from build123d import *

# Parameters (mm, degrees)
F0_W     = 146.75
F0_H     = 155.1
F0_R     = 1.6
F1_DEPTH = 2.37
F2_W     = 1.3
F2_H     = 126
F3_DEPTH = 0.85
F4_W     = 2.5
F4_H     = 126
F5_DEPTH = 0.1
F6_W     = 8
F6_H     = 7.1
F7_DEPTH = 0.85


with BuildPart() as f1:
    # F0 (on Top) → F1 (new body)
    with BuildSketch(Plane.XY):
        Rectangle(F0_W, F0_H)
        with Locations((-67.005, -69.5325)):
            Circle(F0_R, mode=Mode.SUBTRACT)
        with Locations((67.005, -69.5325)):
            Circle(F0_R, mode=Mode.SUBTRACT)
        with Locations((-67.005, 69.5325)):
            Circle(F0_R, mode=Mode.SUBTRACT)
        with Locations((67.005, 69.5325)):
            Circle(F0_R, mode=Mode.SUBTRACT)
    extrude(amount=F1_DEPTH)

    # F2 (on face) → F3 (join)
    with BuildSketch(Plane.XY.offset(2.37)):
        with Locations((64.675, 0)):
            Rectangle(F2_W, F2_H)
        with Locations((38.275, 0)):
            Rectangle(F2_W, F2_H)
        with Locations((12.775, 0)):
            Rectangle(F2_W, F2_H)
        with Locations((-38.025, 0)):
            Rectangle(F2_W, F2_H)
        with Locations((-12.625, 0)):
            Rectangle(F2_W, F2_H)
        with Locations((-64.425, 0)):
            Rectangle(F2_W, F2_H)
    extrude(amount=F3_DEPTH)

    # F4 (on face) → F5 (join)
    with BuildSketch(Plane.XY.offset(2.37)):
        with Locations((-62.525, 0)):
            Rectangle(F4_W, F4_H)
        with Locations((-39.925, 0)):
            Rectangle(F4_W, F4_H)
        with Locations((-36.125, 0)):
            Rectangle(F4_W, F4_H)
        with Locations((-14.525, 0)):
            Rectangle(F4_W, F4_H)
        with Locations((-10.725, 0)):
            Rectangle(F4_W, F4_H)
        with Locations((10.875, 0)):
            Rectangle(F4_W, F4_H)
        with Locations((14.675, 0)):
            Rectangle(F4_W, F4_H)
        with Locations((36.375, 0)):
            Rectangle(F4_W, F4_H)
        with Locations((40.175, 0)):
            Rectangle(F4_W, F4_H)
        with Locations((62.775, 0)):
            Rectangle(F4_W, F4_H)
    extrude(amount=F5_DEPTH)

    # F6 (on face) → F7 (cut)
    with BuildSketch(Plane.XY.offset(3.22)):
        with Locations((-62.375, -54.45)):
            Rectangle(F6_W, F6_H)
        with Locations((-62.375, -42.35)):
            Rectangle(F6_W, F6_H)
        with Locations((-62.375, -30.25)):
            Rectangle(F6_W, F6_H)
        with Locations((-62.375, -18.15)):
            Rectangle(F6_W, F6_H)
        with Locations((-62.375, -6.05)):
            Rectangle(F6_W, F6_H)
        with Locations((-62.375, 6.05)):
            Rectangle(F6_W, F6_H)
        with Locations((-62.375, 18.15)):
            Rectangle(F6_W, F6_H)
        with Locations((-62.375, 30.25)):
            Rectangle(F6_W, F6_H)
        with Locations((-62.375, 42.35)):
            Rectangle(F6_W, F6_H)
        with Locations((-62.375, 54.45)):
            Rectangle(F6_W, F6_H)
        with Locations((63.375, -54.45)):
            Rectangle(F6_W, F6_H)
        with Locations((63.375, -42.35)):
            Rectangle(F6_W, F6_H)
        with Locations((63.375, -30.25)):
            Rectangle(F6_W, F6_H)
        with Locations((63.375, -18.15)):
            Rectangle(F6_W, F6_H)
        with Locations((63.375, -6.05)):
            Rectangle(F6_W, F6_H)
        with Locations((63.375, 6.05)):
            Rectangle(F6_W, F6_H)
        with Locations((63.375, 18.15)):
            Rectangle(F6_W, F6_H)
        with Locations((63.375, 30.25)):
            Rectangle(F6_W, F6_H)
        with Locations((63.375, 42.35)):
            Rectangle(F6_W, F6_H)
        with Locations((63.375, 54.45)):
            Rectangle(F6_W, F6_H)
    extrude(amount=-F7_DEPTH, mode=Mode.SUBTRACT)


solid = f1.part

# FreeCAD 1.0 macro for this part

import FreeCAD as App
import Part
import Sketcher
from FreeCAD import Vector

doc = App.newDocument("Part")
body = doc.addObject("PartDesign::Body", "Body")

sketch1 = doc.addObject("Sketcher::SketchObject", "Sketch")
body.addObject(sketch1)
sketch1.AttachmentSupport = (doc.XY_Plane, [""])
sketch1.MapMode = "FlatFace"
sketch1.addGeometry([
    Part.LineSegment(Vector(-73.4, 77.5, 0), Vector(-73.4, -77.5, 0)),
    Part.LineSegment(Vector(-73.4, -77.5, 0), Vector(73.4, -77.5, 0)),
    Part.LineSegment(Vector(73.4, -77.5, 0), Vector(73.4, 77.5, 0)),
    Part.LineSegment(Vector(73.4, 77.5, 0), Vector(-73.4, 77.5, 0)),
    Part.Circle(Vector(-67, -69.5, 0), Vector(0, 0, 1), 1.6),
    Part.Circle(Vector(67, -69.5, 0), Vector(0, 0, 1), 1.6),
    Part.Circle(Vector(-67, 69.5, 0), Vector(0, 0, 1), 1.6),
    Part.Circle(Vector(67, 69.5, 0), Vector(0, 0, 1), 1.6),
], False)
sketch1.addConstraint([
    Sketcher.Constraint("Coincident", 0, 2, 1, 1),
    Sketcher.Constraint("Coincident", 1, 2, 2, 1),
    Sketcher.Constraint("Coincident", 2, 2, 3, 1),
    Sketcher.Constraint("Coincident", 3, 2, 0, 1),
    Sketcher.Constraint("Vertical", 0),
    Sketcher.Constraint("Horizontal", 1),
    Sketcher.Constraint("Vertical", 2),
    Sketcher.Constraint("Horizontal", 3),
    Sketcher.Constraint("Equal", 4, 5),
    Sketcher.Constraint("Equal", 5, 6),
    Sketcher.Constraint("Equal", 6, 7),
    Sketcher.Constraint("Symmetric", 5, 3, 6, 3, -1, 1),
    Sketcher.Constraint("Symmetric", 4, 3, 7, 3, -1, 1),
    Sketcher.Constraint("Symmetric", 0, 2, 2, 2, -1, 1),
    Sketcher.Constraint("Symmetric", 4, 3, 5, 3, -2),
    Sketcher.Constraint("Diameter", 4, 3.2),
    Sketcher.Constraint("DistanceY", 0, 2, 0, 1, 155.1),
    Sketcher.Constraint("DistanceX", 1, 1, 1, 2, 146.75),
    Sketcher.Constraint("DistanceX", 4, 3, 5, 3, 134.01),
    Sketcher.Constraint("DistanceY", 4, 3, 6, 3, 139.065),
])
pad1 = doc.addObject("PartDesign::Pad", "Pad")
body.addObject(pad1)
pad1.Profile = sketch1
pad1.Length = 2.37

sketch2 = doc.addObject("Sketcher::SketchObject", "Sketch001")
body.addObject(sketch2)
sketch2.AttachmentSupport = (doc.XY_Plane, [""])
sketch2.MapMode = "FlatFace"
sketch2.AttachmentOffset = App.Placement(Vector(0, 0, 2.37), App.Rotation())
sketch2.addGeometry([
    Part.LineSegment(Vector(64, 63, 0), Vector(64, -63, 0)),
    Part.LineSegment(Vector(64, -63, 0), Vector(65.3, -63, 0)),
    Part.LineSegment(Vector(65.3, -63, 0), Vector(65.3, 63, 0)),
    Part.LineSegment(Vector(65.3, 63, 0), Vector(64, 63, 0)),
    Part.LineSegment(Vector(37.6, 63, 0), Vector(37.6, -63, 0)),
    Part.LineSegment(Vector(37.6, -63, 0), Vector(38.9, -63, 0)),
    Part.LineSegment(Vector(38.9, -63, 0), Vector(38.9, 63, 0)),
    Part.LineSegment(Vector(38.9, 63, 0), Vector(37.6, 63, 0)),
    Part.LineSegment(Vector(12.1, 63, 0), Vector(12.1, -63, 0)),
    Part.LineSegment(Vector(12.1, -63, 0), Vector(13.4, -63, 0)),
    Part.LineSegment(Vector(13.4, -63, 0), Vector(13.4, 63, 0)),
    Part.LineSegment(Vector(13.4, 63, 0), Vector(12.1, 63, 0)),
    Part.LineSegment(Vector(-38.7, 63, 0), Vector(-38.7, -63, 0)),
    Part.LineSegment(Vector(-38.7, -63, 0), Vector(-37.4, -63, 0)),
    Part.LineSegment(Vector(-37.4, -63, 0), Vector(-37.4, 63, 0)),
    Part.LineSegment(Vector(-37.4, 63, 0), Vector(-38.7, 63, 0)),
    Part.LineSegment(Vector(-13.3, 63, 0), Vector(-13.3, -63, 0)),
    Part.LineSegment(Vector(-13.3, -63, 0), Vector(-12, -63, 0)),
    Part.LineSegment(Vector(-12, -63, 0), Vector(-12, 63, 0)),
    Part.LineSegment(Vector(-12, 63, 0), Vector(-13.3, 63, 0)),
    Part.LineSegment(Vector(-65.1, 63, 0), Vector(-65.1, -63, 0)),
    Part.LineSegment(Vector(-65.1, -63, 0), Vector(-63.8, -63, 0)),
    Part.LineSegment(Vector(-63.8, -63, 0), Vector(-63.8, 63, 0)),
    Part.LineSegment(Vector(-63.8, 63, 0), Vector(-65.1, 63, 0)),
], False)
sketch2.addConstraint([
    Sketcher.Constraint("Coincident", 0, 2, 1, 1),
    Sketcher.Constraint("Coincident", 1, 2, 2, 1),
    Sketcher.Constraint("Coincident", 2, 2, 3, 1),
    Sketcher.Constraint("Coincident", 3, 2, 0, 1),
    Sketcher.Constraint("Coincident", 4, 2, 5, 1),
    Sketcher.Constraint("Coincident", 5, 2, 6, 1),
    Sketcher.Constraint("Coincident", 6, 2, 7, 1),
    Sketcher.Constraint("Coincident", 7, 2, 4, 1),
    Sketcher.Constraint("Coincident", 8, 2, 9, 1),
    Sketcher.Constraint("Coincident", 9, 2, 10, 1),
    Sketcher.Constraint("Coincident", 10, 2, 11, 1),
    Sketcher.Constraint("Coincident", 11, 2, 8, 1),
    Sketcher.Constraint("Coincident", 12, 2, 13, 1),
    Sketcher.Constraint("Coincident", 13, 2, 14, 1),
    Sketcher.Constraint("Coincident", 14, 2, 15, 1),
    Sketcher.Constraint("Coincident", 15, 2, 12, 1),
    Sketcher.Constraint("Coincident", 16, 2, 17, 1),
    Sketcher.Constraint("Coincident", 17, 2, 18, 1),
    Sketcher.Constraint("Coincident", 18, 2, 19, 1),
    Sketcher.Constraint("Coincident", 19, 2, 16, 1),
    Sketcher.Constraint("Coincident", 20, 2, 21, 1),
    Sketcher.Constraint("Coincident", 21, 2, 22, 1),
    Sketcher.Constraint("Coincident", 22, 2, 23, 1),
    Sketcher.Constraint("Coincident", 23, 2, 20, 1),
    Sketcher.Constraint("Vertical", 0),
    Sketcher.Constraint("Horizontal", 1),
    Sketcher.Constraint("Vertical", 2),
    Sketcher.Constraint("Horizontal", 3),
    Sketcher.Constraint("Vertical", 4),
    Sketcher.Constraint("Horizontal", 5),
    Sketcher.Constraint("Vertical", 6),
    Sketcher.Constraint("Horizontal", 7),
    Sketcher.Constraint("Vertical", 8),
    Sketcher.Constraint("Horizontal", 9),
    Sketcher.Constraint("Vertical", 10),
    Sketcher.Constraint("Horizontal", 11),
    Sketcher.Constraint("Vertical", 12),
    Sketcher.Constraint("Horizontal", 13),
    Sketcher.Constraint("Vertical", 14),
    Sketcher.Constraint("Horizontal", 15),
    Sketcher.Constraint("Vertical", 16),
    Sketcher.Constraint("Horizontal", 17),
    Sketcher.Constraint("Vertical", 18),
    Sketcher.Constraint("Horizontal", 19),
    Sketcher.Constraint("Vertical", 20),
    Sketcher.Constraint("Horizontal", 21),
    Sketcher.Constraint("Vertical", 22),
    Sketcher.Constraint("Horizontal", 23),
    Sketcher.Constraint("Horizontal", 1, 2, 4, 2),
    Sketcher.Constraint("Horizontal", 3, 2, 6, 2),
    Sketcher.Constraint("Horizontal", 5, 2, 8, 2),
    Sketcher.Constraint("Horizontal", 7, 2, 10, 2),
    Sketcher.Constraint("Horizontal", 9, 2, 12, 2),
    Sketcher.Constraint("Horizontal", 11, 2, 14, 2),
    Sketcher.Constraint("Horizontal", 13, 2, 16, 2),
    Sketcher.Constraint("Horizontal", 15, 2, 18, 2),
    Sketcher.Constraint("Horizontal", 17, 2, 20, 2),
    Sketcher.Constraint("Horizontal", 19, 2, 22, 2),
    Sketcher.Constraint("Equal", 3, 5),
    Sketcher.Constraint("Equal", 7, 9),
    Sketcher.Constraint("Equal", 11, 13),
    Sketcher.Constraint("Equal", 15, 17),
    Sketcher.Constraint("Equal", 19, 21),
    Sketcher.Constraint("DistanceY", 0, 2, 0, 1, 126.0),
    Sketcher.Constraint("DistanceX", 1, 1, 1, 2, 1.3),
    Sketcher.Constraint("DistanceY", 0, 2, -1, 1, 63.0),
    Sketcher.Constraint("DistanceX", 13, 2, 4, 2, 75.0),
    Sketcher.Constraint("DistanceX", 4, 2, 0, 2, 26.4),
    Sketcher.Constraint("DistanceX", 8, 2, 4, 2, 25.5),
    Sketcher.Constraint("DistanceX", 13, 2, 16, 2, 24.1),
    Sketcher.Constraint("DistanceX", 20, 2, 12, 2, 26.4),
    Sketcher.Constraint("DistanceX", -1, 1, 0, 2, 64.025),
])
pad2 = doc.addObject("PartDesign::Pad", "Pad001")
body.addObject(pad2)
pad2.Profile = sketch2
pad2.Length = 0.85

sketch3 = doc.addObject("Sketcher::SketchObject", "Sketch002")
body.addObject(sketch3)
sketch3.AttachmentSupport = (doc.XY_Plane, [""])
sketch3.MapMode = "FlatFace"
sketch3.AttachmentOffset = App.Placement(Vector(0, 0, 2.37), App.Rotation())
sketch3.addGeometry([
    Part.LineSegment(Vector(-63.8, 63, 0), Vector(-63.8, -63, 0)),
    Part.LineSegment(Vector(-63.8, -63, 0), Vector(-61.3, -63, 0)),
    Part.LineSegment(Vector(-61.3, -63, 0), Vector(-61.3, 63, 0)),
    Part.LineSegment(Vector(-61.3, 63, 0), Vector(-63.8, 63, 0)),
    Part.LineSegment(Vector(-41.2, 63, 0), Vector(-41.2, -63, 0)),
    Part.LineSegment(Vector(-41.2, -63, 0), Vector(-38.7, -63, 0)),
    Part.LineSegment(Vector(-38.7, -63, 0), Vector(-38.7, 63, 0)),
    Part.LineSegment(Vector(-38.7, 63, 0), Vector(-41.2, 63, 0)),
    Part.LineSegment(Vector(-37.4, 63, 0), Vector(-37.4, -63, 0)),
    Part.LineSegment(Vector(-37.4, -63, 0), Vector(-34.9, -63, 0)),
    Part.LineSegment(Vector(-34.9, -63, 0), Vector(-34.9, 63, 0)),
    Part.LineSegment(Vector(-34.9, 63, 0), Vector(-37.4, 63, 0)),
    Part.LineSegment(Vector(-15.8, 63, 0), Vector(-15.8, -63, 0)),
    Part.LineSegment(Vector(-15.8, -63, 0), Vector(-13.3, -63, 0)),
    Part.LineSegment(Vector(-13.3, -63, 0), Vector(-13.3, 63, 0)),
    Part.LineSegment(Vector(-13.3, 63, 0), Vector(-15.8, 63, 0)),
    Part.LineSegment(Vector(-12, 63, 0), Vector(-12, -63, 0)),
    Part.LineSegment(Vector(-12, -63, 0), Vector(-9.5, -63, 0)),
    Part.LineSegment(Vector(-9.5, -63, 0), Vector(-9.5, 63, 0)),
    Part.LineSegment(Vector(-9.5, 63, 0), Vector(-12, 63, 0)),
    Part.LineSegment(Vector(9.6, 63, 0), Vector(9.6, -63, 0)),
    Part.LineSegment(Vector(9.6, -63, 0), Vector(12.1, -63, 0)),
    Part.LineSegment(Vector(12.1, -63, 0), Vector(12.1, 63, 0)),
    Part.LineSegment(Vector(12.1, 63, 0), Vector(9.6, 63, 0)),
    Part.LineSegment(Vector(13.4, 63, 0), Vector(13.4, -63, 0)),
    Part.LineSegment(Vector(13.4, -63, 0), Vector(15.9, -63, 0)),
    Part.LineSegment(Vector(15.9, -63, 0), Vector(15.9, 63, 0)),
    Part.LineSegment(Vector(15.9, 63, 0), Vector(13.4, 63, 0)),
    Part.LineSegment(Vector(35.1, 63, 0), Vector(35.1, -63, 0)),
    Part.LineSegment(Vector(35.1, -63, 0), Vector(37.6, -63, 0)),
    Part.LineSegment(Vector(37.6, -63, 0), Vector(37.6, 63, 0)),
    Part.LineSegment(Vector(37.6, 63, 0), Vector(35.1, 63, 0)),
    Part.LineSegment(Vector(38.9, 63, 0), Vector(38.9, -63, 0)),
    Part.LineSegment(Vector(38.9, -63, 0), Vector(41.4, -63, 0)),
    Part.LineSegment(Vector(41.4, -63, 0), Vector(41.4, 63, 0)),
    Part.LineSegment(Vector(41.4, 63, 0), Vector(38.9, 63, 0)),
    Part.LineSegment(Vector(61.5, 63, 0), Vector(61.5, -63, 0)),
    Part.LineSegment(Vector(61.5, -63, 0), Vector(64, -63, 0)),
    Part.LineSegment(Vector(64, -63, 0), Vector(64, 63, 0)),
    Part.LineSegment(Vector(64, 63, 0), Vector(61.5, 63, 0)),
], False)
sketch3.addConstraint([
    Sketcher.Constraint("Coincident", 0, 2, 1, 1),
    Sketcher.Constraint("Coincident", 1, 2, 2, 1),
    Sketcher.Constraint("Coincident", 2, 2, 3, 1),
    Sketcher.Constraint("Coincident", 3, 2, 0, 1),
    Sketcher.Constraint("Coincident", 4, 2, 5, 1),
    Sketcher.Constraint("Coincident", 5, 2, 6, 1),
    Sketcher.Constraint("Coincident", 6, 2, 7, 1),
    Sketcher.Constraint("Coincident", 7, 2, 4, 1),
    Sketcher.Constraint("Coincident", 8, 2, 9, 1),
    Sketcher.Constraint("Coincident", 9, 2, 10, 1),
    Sketcher.Constraint("Coincident", 10, 2, 11, 1),
    Sketcher.Constraint("Coincident", 11, 2, 8, 1),
    Sketcher.Constraint("Coincident", 12, 2, 13, 1),
    Sketcher.Constraint("Coincident", 13, 2, 14, 1),
    Sketcher.Constraint("Coincident", 14, 2, 15, 1),
    Sketcher.Constraint("Coincident", 15, 2, 12, 1),
    Sketcher.Constraint("Coincident", 16, 2, 17, 1),
    Sketcher.Constraint("Coincident", 17, 2, 18, 1),
    Sketcher.Constraint("Coincident", 18, 2, 19, 1),
    Sketcher.Constraint("Coincident", 19, 2, 16, 1),
    Sketcher.Constraint("Coincident", 20, 2, 21, 1),
    Sketcher.Constraint("Coincident", 21, 2, 22, 1),
    Sketcher.Constraint("Coincident", 22, 2, 23, 1),
    Sketcher.Constraint("Coincident", 23, 2, 20, 1),
    Sketcher.Constraint("Coincident", 24, 2, 25, 1),
    Sketcher.Constraint("Coincident", 25, 2, 26, 1),
    Sketcher.Constraint("Coincident", 26, 2, 27, 1),
    Sketcher.Constraint("Coincident", 27, 2, 24, 1),
    Sketcher.Constraint("Coincident", 28, 2, 29, 1),
    Sketcher.Constraint("Coincident", 29, 2, 30, 1),
    Sketcher.Constraint("Coincident", 30, 2, 31, 1),
    Sketcher.Constraint("Coincident", 31, 2, 28, 1),
    Sketcher.Constraint("Coincident", 32, 2, 33, 1),
    Sketcher.Constraint("Coincident", 33, 2, 34, 1),
    Sketcher.Constraint("Coincident", 34, 2, 35, 1),
    Sketcher.Constraint("Coincident", 35, 2, 32, 1),
    Sketcher.Constraint("Coincident", 36, 2, 37, 1),
    Sketcher.Constraint("Coincident", 37, 2, 38, 1),
    Sketcher.Constraint("Coincident", 38, 2, 39, 1),
    Sketcher.Constraint("Coincident", 39, 2, 36, 1),
    Sketcher.Constraint("Vertical", 0),
    Sketcher.Constraint("Horizontal", 1),
    Sketcher.Constraint("Vertical", 2),
    Sketcher.Constraint("Horizontal", 3),
    Sketcher.Constraint("Vertical", 4),
    Sketcher.Constraint("Horizontal", 5),
    Sketcher.Constraint("Vertical", 6),
    Sketcher.Constraint("Horizontal", 7),
    Sketcher.Constraint("Vertical", 8),
    Sketcher.Constraint("Horizontal", 9),
    Sketcher.Constraint("Vertical", 10),
    Sketcher.Constraint("Horizontal", 11),
    Sketcher.Constraint("Vertical", 12),
    Sketcher.Constraint("Horizontal", 13),
    Sketcher.Constraint("Vertical", 14),
    Sketcher.Constraint("Horizontal", 15),
    Sketcher.Constraint("Vertical", 16),
    Sketcher.Constraint("Horizontal", 17),
    Sketcher.Constraint("Vertical", 18),
    Sketcher.Constraint("Horizontal", 19),
    Sketcher.Constraint("Vertical", 20),
    Sketcher.Constraint("Horizontal", 21),
    Sketcher.Constraint("Vertical", 22),
    Sketcher.Constraint("Horizontal", 23),
    Sketcher.Constraint("Vertical", 24),
    Sketcher.Constraint("Horizontal", 25),
    Sketcher.Constraint("Vertical", 26),
    Sketcher.Constraint("Horizontal", 27),
    Sketcher.Constraint("Vertical", 28),
    Sketcher.Constraint("Horizontal", 29),
    Sketcher.Constraint("Vertical", 30),
    Sketcher.Constraint("Horizontal", 31),
    Sketcher.Constraint("Vertical", 32),
    Sketcher.Constraint("Horizontal", 33),
    Sketcher.Constraint("Vertical", 34),
    Sketcher.Constraint("Horizontal", 35),
    Sketcher.Constraint("Vertical", 36),
    Sketcher.Constraint("Horizontal", 37),
    Sketcher.Constraint("Vertical", 38),
    Sketcher.Constraint("Horizontal", 39),
    Sketcher.Constraint("Horizontal", 1, 2, 4, 2),
    Sketcher.Constraint("Horizontal", 3, 2, 6, 2),
    Sketcher.Constraint("Horizontal", 5, 2, 8, 2),
    Sketcher.Constraint("Horizontal", 7, 2, 10, 2),
    Sketcher.Constraint("Horizontal", 9, 2, 12, 2),
    Sketcher.Constraint("Horizontal", 11, 2, 14, 2),
    Sketcher.Constraint("Horizontal", 13, 2, 16, 2),
    Sketcher.Constraint("Horizontal", 15, 2, 18, 2),
    Sketcher.Constraint("Horizontal", 17, 2, 20, 2),
    Sketcher.Constraint("Horizontal", 19, 2, 22, 2),
    Sketcher.Constraint("Horizontal", 21, 2, 24, 2),
    Sketcher.Constraint("Horizontal", 23, 2, 26, 2),
    Sketcher.Constraint("Horizontal", 25, 2, 28, 2),
    Sketcher.Constraint("Horizontal", 27, 2, 30, 2),
    Sketcher.Constraint("Horizontal", 29, 2, 32, 2),
    Sketcher.Constraint("Horizontal", 31, 2, 34, 2),
    Sketcher.Constraint("Horizontal", 33, 2, 36, 2),
    Sketcher.Constraint("Horizontal", 35, 2, 38, 2),
    Sketcher.Constraint("Equal", 3, 5),
    Sketcher.Constraint("Equal", 7, 9),
    Sketcher.Constraint("Equal", 11, 13),
    Sketcher.Constraint("Equal", 15, 17),
    Sketcher.Constraint("Equal", 19, 21),
    Sketcher.Constraint("Equal", 23, 25),
    Sketcher.Constraint("Equal", 27, 29),
    Sketcher.Constraint("Equal", 31, 33),
    Sketcher.Constraint("Equal", 35, 37),
    Sketcher.Constraint("DistanceY", 0, 2, 0, 1, 126.0),
    Sketcher.Constraint("DistanceX", 1, 1, 1, 2, 2.5),
    Sketcher.Constraint("DistanceY", 0, 2, -1, 1, 63.0),
    Sketcher.Constraint("DistanceX", 2, 2, 14, 2, 48.0),
    Sketcher.Constraint("DistanceX", 10, 2, 22, 2, 47.0),
    Sketcher.Constraint("DistanceX", 21, 2, 28, 2, 23.0),
    Sketcher.Constraint("DistanceX", 25, 2, 32, 2, 23.0),
    Sketcher.Constraint("DistanceX", 1, 2, 4, 2, 20.1),
    Sketcher.Constraint("DistanceX", 5, 2, 8, 2, 1.3),
    Sketcher.Constraint("DistanceX", 13, 2, 16, 2, 1.3),
    Sketcher.Constraint("DistanceX", 21, 2, 24, 2, 1.3),
    Sketcher.Constraint("DistanceX", 33, 2, 36, 2, 20.1),
    Sketcher.Constraint("DistanceX", 0, 2, -1, 1, 63.775),
])
pad3 = doc.addObject("PartDesign::Pad", "Pad002")
body.addObject(pad3)
pad3.Profile = sketch3
pad3.Length = 0.1

sketch4 = doc.addObject("Sketcher::SketchObject", "Sketch003")
body.addObject(sketch4)
sketch4.AttachmentSupport = (doc.XY_Plane, [""])
sketch4.MapMode = "FlatFace"
sketch4.AttachmentOffset = App.Placement(Vector(0, 0, 3.22), App.Rotation())
sketch4.addGeometry([
    Part.LineSegment(Vector(-66, -51, 0), Vector(-66, -58, 0)),
    Part.LineSegment(Vector(-66, -58, 0), Vector(-58, -58, 0)),
    Part.LineSegment(Vector(-58, -58, 0), Vector(-58, -51, 0)),
    Part.LineSegment(Vector(-58, -51, 0), Vector(-66, -51, 0)),
    Part.LineSegment(Vector(-66, -39, 0), Vector(-66, -46, 0)),
    Part.LineSegment(Vector(-66, -46, 0), Vector(-58, -46, 0)),
    Part.LineSegment(Vector(-58, -46, 0), Vector(-58, -39, 0)),
    Part.LineSegment(Vector(-58, -39, 0), Vector(-66, -39, 0)),
    Part.LineSegment(Vector(-66, -27, 0), Vector(-66, -34, 0)),
    Part.LineSegment(Vector(-66, -34, 0), Vector(-58, -34, 0)),
    Part.LineSegment(Vector(-58, -34, 0), Vector(-58, -27, 0)),
    Part.LineSegment(Vector(-58, -27, 0), Vector(-66, -27, 0)),
    Part.LineSegment(Vector(-66, -15, 0), Vector(-66, -22, 0)),
    Part.LineSegment(Vector(-66, -22, 0), Vector(-58, -22, 0)),
    Part.LineSegment(Vector(-58, -22, 0), Vector(-58, -15, 0)),
    Part.LineSegment(Vector(-58, -15, 0), Vector(-66, -15, 0)),
    Part.LineSegment(Vector(-66, -2, 0), Vector(-66, -10, 0)),
    Part.LineSegment(Vector(-66, -10, 0), Vector(-58, -10, 0)),
    Part.LineSegment(Vector(-58, -10, 0), Vector(-58, -2, 0)),
    Part.LineSegment(Vector(-58, -2, 0), Vector(-66, -2, 0)),
    Part.LineSegment(Vector(-66, 10, 0), Vector(-66, 2, 0)),
    Part.LineSegment(Vector(-66, 2, 0), Vector(-58, 2, 0)),
    Part.LineSegment(Vector(-58, 2, 0), Vector(-58, 10, 0)),
    Part.LineSegment(Vector(-58, 10, 0), Vector(-66, 10, 0)),
    Part.LineSegment(Vector(-66, 22, 0), Vector(-66, 15, 0)),
    Part.LineSegment(Vector(-66, 15, 0), Vector(-58, 15, 0)),
    Part.LineSegment(Vector(-58, 15, 0), Vector(-58, 22, 0)),
    Part.LineSegment(Vector(-58, 22, 0), Vector(-66, 22, 0)),
    Part.LineSegment(Vector(-66, 34, 0), Vector(-66, 27, 0)),
    Part.LineSegment(Vector(-66, 27, 0), Vector(-58, 27, 0)),
    Part.LineSegment(Vector(-58, 27, 0), Vector(-58, 34, 0)),
    Part.LineSegment(Vector(-58, 34, 0), Vector(-66, 34, 0)),
    Part.LineSegment(Vector(-66, 46, 0), Vector(-66, 39, 0)),
    Part.LineSegment(Vector(-66, 39, 0), Vector(-58, 39, 0)),
    Part.LineSegment(Vector(-58, 39, 0), Vector(-58, 46, 0)),
    Part.LineSegment(Vector(-58, 46, 0), Vector(-66, 46, 0)),
    Part.LineSegment(Vector(-66, 58, 0), Vector(-66, 51, 0)),
    Part.LineSegment(Vector(-66, 51, 0), Vector(-58, 51, 0)),
    Part.LineSegment(Vector(-58, 51, 0), Vector(-58, 58, 0)),
    Part.LineSegment(Vector(-58, 58, 0), Vector(-66, 58, 0)),
    Part.LineSegment(Vector(59, -51, 0), Vector(59, -58, 0)),
    Part.LineSegment(Vector(59, -58, 0), Vector(67, -58, 0)),
    Part.LineSegment(Vector(67, -58, 0), Vector(67, -51, 0)),
    Part.LineSegment(Vector(67, -51, 0), Vector(59, -51, 0)),
    Part.LineSegment(Vector(59, -39, 0), Vector(59, -46, 0)),
    Part.LineSegment(Vector(59, -46, 0), Vector(67, -46, 0)),
    Part.LineSegment(Vector(67, -46, 0), Vector(67, -39, 0)),
    Part.LineSegment(Vector(67, -39, 0), Vector(59, -39, 0)),
    Part.LineSegment(Vector(59, -27, 0), Vector(59, -34, 0)),
    Part.LineSegment(Vector(59, -34, 0), Vector(67, -34, 0)),
    Part.LineSegment(Vector(67, -34, 0), Vector(67, -27, 0)),
    Part.LineSegment(Vector(67, -27, 0), Vector(59, -27, 0)),
    Part.LineSegment(Vector(59, -15, 0), Vector(59, -22, 0)),
    Part.LineSegment(Vector(59, -22, 0), Vector(67, -22, 0)),
    Part.LineSegment(Vector(67, -22, 0), Vector(67, -15, 0)),
    Part.LineSegment(Vector(67, -15, 0), Vector(59, -15, 0)),
    Part.LineSegment(Vector(59, -2, 0), Vector(59, -10, 0)),
    Part.LineSegment(Vector(59, -10, 0), Vector(67, -10, 0)),
    Part.LineSegment(Vector(67, -10, 0), Vector(67, -2, 0)),
    Part.LineSegment(Vector(67, -2, 0), Vector(59, -2, 0)),
    Part.LineSegment(Vector(59, 10, 0), Vector(59, 2, 0)),
    Part.LineSegment(Vector(59, 2, 0), Vector(67, 2, 0)),
    Part.LineSegment(Vector(67, 2, 0), Vector(67, 10, 0)),
    Part.LineSegment(Vector(67, 10, 0), Vector(59, 10, 0)),
    Part.LineSegment(Vector(59, 22, 0), Vector(59, 15, 0)),
    Part.LineSegment(Vector(59, 15, 0), Vector(67, 15, 0)),
    Part.LineSegment(Vector(67, 15, 0), Vector(67, 22, 0)),
    Part.LineSegment(Vector(67, 22, 0), Vector(59, 22, 0)),
    Part.LineSegment(Vector(59, 34, 0), Vector(59, 27, 0)),
    Part.LineSegment(Vector(59, 27, 0), Vector(67, 27, 0)),
    Part.LineSegment(Vector(67, 27, 0), Vector(67, 34, 0)),
    Part.LineSegment(Vector(67, 34, 0), Vector(59, 34, 0)),
    Part.LineSegment(Vector(59, 46, 0), Vector(59, 39, 0)),
    Part.LineSegment(Vector(59, 39, 0), Vector(67, 39, 0)),
    Part.LineSegment(Vector(67, 39, 0), Vector(67, 46, 0)),
    Part.LineSegment(Vector(67, 46, 0), Vector(59, 46, 0)),
    Part.LineSegment(Vector(59, 58, 0), Vector(59, 51, 0)),
    Part.LineSegment(Vector(59, 51, 0), Vector(67, 51, 0)),
    Part.LineSegment(Vector(67, 51, 0), Vector(67, 58, 0)),
    Part.LineSegment(Vector(67, 58, 0), Vector(59, 58, 0)),
], False)
sketch4.addConstraint([
    Sketcher.Constraint("Coincident", 0, 2, 1, 1),
    Sketcher.Constraint("Coincident", 1, 2, 2, 1),
    Sketcher.Constraint("Coincident", 2, 2, 3, 1),
    Sketcher.Constraint("Coincident", 3, 2, 0, 1),
    Sketcher.Constraint("Coincident", 4, 2, 5, 1),
    Sketcher.Constraint("Coincident", 5, 2, 6, 1),
    Sketcher.Constraint("Coincident", 6, 2, 7, 1),
    Sketcher.Constraint("Coincident", 7, 2, 4, 1),
    Sketcher.Constraint("Coincident", 8, 2, 9, 1),
    Sketcher.Constraint("Coincident", 9, 2, 10, 1),
    Sketcher.Constraint("Coincident", 10, 2, 11, 1),
    Sketcher.Constraint("Coincident", 11, 2, 8, 1),
    Sketcher.Constraint("Coincident", 12, 2, 13, 1),
    Sketcher.Constraint("Coincident", 13, 2, 14, 1),
    Sketcher.Constraint("Coincident", 14, 2, 15, 1),
    Sketcher.Constraint("Coincident", 15, 2, 12, 1),
    Sketcher.Constraint("Coincident", 16, 2, 17, 1),
    Sketcher.Constraint("Coincident", 17, 2, 18, 1),
    Sketcher.Constraint("Coincident", 18, 2, 19, 1),
    Sketcher.Constraint("Coincident", 19, 2, 16, 1),
    Sketcher.Constraint("Coincident", 20, 2, 21, 1),
    Sketcher.Constraint("Coincident", 21, 2, 22, 1),
    Sketcher.Constraint("Coincident", 22, 2, 23, 1),
    Sketcher.Constraint("Coincident", 23, 2, 20, 1),
    Sketcher.Constraint("Coincident", 24, 2, 25, 1),
    Sketcher.Constraint("Coincident", 25, 2, 26, 1),
    Sketcher.Constraint("Coincident", 26, 2, 27, 1),
    Sketcher.Constraint("Coincident", 27, 2, 24, 1),
    Sketcher.Constraint("Coincident", 28, 2, 29, 1),
    Sketcher.Constraint("Coincident", 29, 2, 30, 1),
    Sketcher.Constraint("Coincident", 30, 2, 31, 1),
    Sketcher.Constraint("Coincident", 31, 2, 28, 1),
    Sketcher.Constraint("Coincident", 32, 2, 33, 1),
    Sketcher.Constraint("Coincident", 33, 2, 34, 1),
    Sketcher.Constraint("Coincident", 34, 2, 35, 1),
    Sketcher.Constraint("Coincident", 35, 2, 32, 1),
    Sketcher.Constraint("Coincident", 36, 2, 37, 1),
    Sketcher.Constraint("Coincident", 37, 2, 38, 1),
    Sketcher.Constraint("Coincident", 38, 2, 39, 1),
    Sketcher.Constraint("Coincident", 39, 2, 36, 1),
    Sketcher.Constraint("Coincident", 40, 2, 41, 1),
    Sketcher.Constraint("Coincident", 41, 2, 42, 1),
    Sketcher.Constraint("Coincident", 42, 2, 43, 1),
    Sketcher.Constraint("Coincident", 43, 2, 40, 1),
    Sketcher.Constraint("Coincident", 44, 2, 45, 1),
    Sketcher.Constraint("Coincident", 45, 2, 46, 1),
    Sketcher.Constraint("Coincident", 46, 2, 47, 1),
    Sketcher.Constraint("Coincident", 47, 2, 44, 1),
    Sketcher.Constraint("Coincident", 48, 2, 49, 1),
    Sketcher.Constraint("Coincident", 49, 2, 50, 1),
    Sketcher.Constraint("Coincident", 50, 2, 51, 1),
    Sketcher.Constraint("Coincident", 51, 2, 48, 1),
    Sketcher.Constraint("Coincident", 52, 2, 53, 1),
    Sketcher.Constraint("Coincident", 53, 2, 54, 1),
    Sketcher.Constraint("Coincident", 54, 2, 55, 1),
    Sketcher.Constraint("Coincident", 55, 2, 52, 1),
    Sketcher.Constraint("Coincident", 56, 2, 57, 1),
    Sketcher.Constraint("Coincident", 57, 2, 58, 1),
    Sketcher.Constraint("Coincident", 58, 2, 59, 1),
    Sketcher.Constraint("Coincident", 59, 2, 56, 1),
    Sketcher.Constraint("Coincident", 60, 2, 61, 1),
    Sketcher.Constraint("Coincident", 61, 2, 62, 1),
    Sketcher.Constraint("Coincident", 62, 2, 63, 1),
    Sketcher.Constraint("Coincident", 63, 2, 60, 1),
    Sketcher.Constraint("Coincident", 64, 2, 65, 1),
    Sketcher.Constraint("Coincident", 65, 2, 66, 1),
    Sketcher.Constraint("Coincident", 66, 2, 67, 1),
    Sketcher.Constraint("Coincident", 67, 2, 64, 1),
    Sketcher.Constraint("Coincident", 68, 2, 69, 1),
    Sketcher.Constraint("Coincident", 69, 2, 70, 1),
    Sketcher.Constraint("Coincident", 70, 2, 71, 1),
    Sketcher.Constraint("Coincident", 71, 2, 68, 1),
    Sketcher.Constraint("Coincident", 72, 2, 73, 1),
    Sketcher.Constraint("Coincident", 73, 2, 74, 1),
    Sketcher.Constraint("Coincident", 74, 2, 75, 1),
    Sketcher.Constraint("Coincident", 75, 2, 72, 1),
    Sketcher.Constraint("Coincident", 76, 2, 77, 1),
    Sketcher.Constraint("Coincident", 77, 2, 78, 1),
    Sketcher.Constraint("Coincident", 78, 2, 79, 1),
    Sketcher.Constraint("Coincident", 79, 2, 76, 1),
    Sketcher.Constraint("Vertical", 0),
    Sketcher.Constraint("Horizontal", 1),
    Sketcher.Constraint("Vertical", 2),
    Sketcher.Constraint("Horizontal", 3),
    Sketcher.Constraint("Vertical", 4),
    Sketcher.Constraint("Horizontal", 5),
    Sketcher.Constraint("Vertical", 6),
    Sketcher.Constraint("Horizontal", 7),
    Sketcher.Constraint("Vertical", 8),
    Sketcher.Constraint("Horizontal", 9),
    Sketcher.Constraint("Vertical", 10),
    Sketcher.Constraint("Horizontal", 11),
    Sketcher.Constraint("Vertical", 12),
    Sketcher.Constraint("Horizontal", 13),
    Sketcher.Constraint("Vertical", 14),
    Sketcher.Constraint("Horizontal", 15),
    Sketcher.Constraint("Vertical", 16),
    Sketcher.Constraint("Horizontal", 17),
    Sketcher.Constraint("Vertical", 18),
    Sketcher.Constraint("Horizontal", 19),
    Sketcher.Constraint("Vertical", 20),
    Sketcher.Constraint("Horizontal", 21),
    Sketcher.Constraint("Vertical", 22),
    Sketcher.Constraint("Horizontal", 23),
    Sketcher.Constraint("Vertical", 24),
    Sketcher.Constraint("Horizontal", 25),
    Sketcher.Constraint("Vertical", 26),
    Sketcher.Constraint("Horizontal", 27),
    Sketcher.Constraint("Vertical", 28),
    Sketcher.Constraint("Horizontal", 29),
    Sketcher.Constraint("Vertical", 30),
    Sketcher.Constraint("Horizontal", 31),
    Sketcher.Constraint("Vertical", 32),
    Sketcher.Constraint("Horizontal", 33),
    Sketcher.Constraint("Vertical", 34),
    Sketcher.Constraint("Horizontal", 35),
    Sketcher.Constraint("Vertical", 36),
    Sketcher.Constraint("Horizontal", 37),
    Sketcher.Constraint("Vertical", 38),
    Sketcher.Constraint("Horizontal", 39),
    Sketcher.Constraint("Vertical", 40),
    Sketcher.Constraint("Horizontal", 41),
    Sketcher.Constraint("Vertical", 42),
    Sketcher.Constraint("Horizontal", 43),
    Sketcher.Constraint("Vertical", 44),
    Sketcher.Constraint("Horizontal", 45),
    Sketcher.Constraint("Vertical", 46),
    Sketcher.Constraint("Horizontal", 47),
    Sketcher.Constraint("Vertical", 48),
    Sketcher.Constraint("Horizontal", 49),
    Sketcher.Constraint("Vertical", 50),
    Sketcher.Constraint("Horizontal", 51),
    Sketcher.Constraint("Vertical", 52),
    Sketcher.Constraint("Horizontal", 53),
    Sketcher.Constraint("Vertical", 54),
    Sketcher.Constraint("Horizontal", 55),
    Sketcher.Constraint("Vertical", 56),
    Sketcher.Constraint("Horizontal", 57),
    Sketcher.Constraint("Vertical", 58),
    Sketcher.Constraint("Horizontal", 59),
    Sketcher.Constraint("Vertical", 60),
    Sketcher.Constraint("Horizontal", 61),
    Sketcher.Constraint("Vertical", 62),
    Sketcher.Constraint("Horizontal", 63),
    Sketcher.Constraint("Vertical", 64),
    Sketcher.Constraint("Horizontal", 65),
    Sketcher.Constraint("Vertical", 66),
    Sketcher.Constraint("Horizontal", 67),
    Sketcher.Constraint("Vertical", 68),
    Sketcher.Constraint("Horizontal", 69),
    Sketcher.Constraint("Vertical", 70),
    Sketcher.Constraint("Horizontal", 71),
    Sketcher.Constraint("Vertical", 72),
    Sketcher.Constraint("Horizontal", 73),
    Sketcher.Constraint("Vertical", 74),
    Sketcher.Constraint("Horizontal", 75),
    Sketcher.Constraint("Vertical", 76),
    Sketcher.Constraint("Horizontal", 77),
    Sketcher.Constraint("Vertical", 78),
    Sketcher.Constraint("Horizontal", 79),
    Sketcher.Constraint("Symmetric", 19, 2, 20, 2, -1),
    Sketcher.Constraint("Symmetric", 17, 2, 22, 2, -1),
    Sketcher.Constraint("Symmetric", 15, 2, 24, 2, -1),
    Sketcher.Constraint("Symmetric", 13, 2, 26, 2, -1),
    Sketcher.Constraint("Symmetric", 11, 2, 28, 2, -1),
    Sketcher.Constraint("Symmetric", 9, 2, 30, 2, -1),
    Sketcher.Constraint("Symmetric", 7, 2, 32, 2, -1),
    Sketcher.Constraint("Symmetric", 5, 2, 34, 2, -1),
    Sketcher.Constraint("Symmetric", 3, 2, 36, 2, -1),
    Sketcher.Constraint("Symmetric", 1, 2, 38, 2, -1),
    Sketcher.Constraint("Symmetric", 59, 2, 60, 2, -1),
    Sketcher.Constraint("Symmetric", 57, 2, 62, 2, -1),
    Sketcher.Constraint("Symmetric", 55, 2, 64, 2, -1),
    Sketcher.Constraint("Symmetric", 53, 2, 66, 2, -1),
    Sketcher.Constraint("Symmetric", 51, 2, 68, 2, -1),
    Sketcher.Constraint("Symmetric", 49, 2, 70, 2, -1),
    Sketcher.Constraint("Symmetric", 47, 2, 72, 2, -1),
    Sketcher.Constraint("Symmetric", 45, 2, 74, 2, -1),
    Sketcher.Constraint("Symmetric", 43, 2, 76, 2, -1),
    Sketcher.Constraint("Symmetric", 41, 2, 78, 2, -1),
    Sketcher.Constraint("Horizontal", 1, 2, 40, 2),
    Sketcher.Constraint("Horizontal", 3, 2, 42, 2),
    Sketcher.Constraint("Horizontal", 5, 2, 44, 2),
    Sketcher.Constraint("Horizontal", 7, 2, 46, 2),
    Sketcher.Constraint("Horizontal", 9, 2, 48, 2),
    Sketcher.Constraint("Horizontal", 11, 2, 50, 2),
    Sketcher.Constraint("Horizontal", 13, 2, 52, 2),
    Sketcher.Constraint("Horizontal", 15, 2, 54, 2),
    Sketcher.Constraint("Horizontal", 17, 2, 56, 2),
    Sketcher.Constraint("Horizontal", 19, 2, 58, 2),
    Sketcher.Constraint("Vertical", 3, 2, 4, 2),
    Sketcher.Constraint("Vertical", 2, 2, 5, 2),
    Sketcher.Constraint("Vertical", 7, 2, 8, 2),
    Sketcher.Constraint("Vertical", 6, 2, 9, 2),
    Sketcher.Constraint("Vertical", 11, 2, 12, 2),
    Sketcher.Constraint("Vertical", 10, 2, 13, 2),
    Sketcher.Constraint("Vertical", 15, 2, 16, 2),
    Sketcher.Constraint("Vertical", 14, 2, 17, 2),
    Sketcher.Constraint("Vertical", 43, 2, 44, 2),
    Sketcher.Constraint("Vertical", 42, 2, 45, 2),
    Sketcher.Constraint("Vertical", 47, 2, 48, 2),
    Sketcher.Constraint("Vertical", 46, 2, 49, 2),
    Sketcher.Constraint("Vertical", 51, 2, 52, 2),
    Sketcher.Constraint("Vertical", 50, 2, 53, 2),
    Sketcher.Constraint("Vertical", 55, 2, 56, 2),
    Sketcher.Constraint("Vertical", 54, 2, 57, 2),
    Sketcher.Constraint("Equal", 39, 41),
    Sketcher.Constraint("Equal", 2, 4),
    Sketcher.Constraint("Equal", 6, 8),
    Sketcher.Constraint("Equal", 10, 12),
    Sketcher.Constraint("Equal", 14, 16),
    Sketcher.Constraint("DistanceX", 1, 1, 1, 2, 8.0),
    Sketcher.Constraint("DistanceY", 0, 2, 0, 1, 7.1),
    Sketcher.Constraint("DistanceY", 0, 2, -1, 1, 58.0),
    Sketcher.Constraint("DistanceY", 4, 2, -1, 1, 45.9),
    Sketcher.Constraint("DistanceY", 8, 2, -1, 1, 33.8),
    Sketcher.Constraint("DistanceY", 12, 2, -1, 1, 21.7),
    Sketcher.Constraint("DistanceY", 16, 2, -1, 1, 9.6),
    Sketcher.Constraint("DistanceX", 0, 2, -1, 1, 66.375),
    Sketcher.Constraint("DistanceX", -1, 1, 40, 2, 59.375),
])
pocket1 = doc.addObject("PartDesign::Pocket", "Pocket")
body.addObject(pocket1)
pocket1.Profile = sketch4
pocket1.Length = 0.85

doc.recompute()
